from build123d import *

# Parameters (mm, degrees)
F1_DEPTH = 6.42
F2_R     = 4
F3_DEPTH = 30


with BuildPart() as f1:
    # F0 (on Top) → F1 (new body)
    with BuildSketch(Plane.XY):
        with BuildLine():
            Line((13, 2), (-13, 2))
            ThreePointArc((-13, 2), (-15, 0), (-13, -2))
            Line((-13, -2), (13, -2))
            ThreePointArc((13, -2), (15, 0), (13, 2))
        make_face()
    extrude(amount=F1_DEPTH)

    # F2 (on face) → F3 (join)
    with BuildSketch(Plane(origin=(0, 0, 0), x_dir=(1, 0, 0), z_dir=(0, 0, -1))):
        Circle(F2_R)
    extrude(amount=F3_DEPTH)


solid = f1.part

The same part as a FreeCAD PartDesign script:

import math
import FreeCAD as App
import Part
import Sketcher

V = App.Vector
Q = App.Units.Quantity

doc = App.newDocument("Part")
params = doc.addObject("Spreadsheet::Sheet", "Params")
for row, (alias, value) in enumerate([
    ("sketch1_radius", "2 mm"),
    ("sketch1_width", "26 mm"),
    ("pad1_length", "6.42 mm"),
    ("sketch2_diameter", "8 mm"),
    ("pad2_length", "30 mm"),
], start=1):
    params.set(f"A{row}", alias)
    params.set(f"B{row}", "=" + value)
    params.setAlias(f"B{row}", alias)

body = doc.addObject("PartDesign::Body", "Body")

# Sketch on XY plane
sketch1 = doc.addObject("Sketcher::SketchObject", "Sketch")
body.addObject(sketch1)
sketch1.AttachmentSupport = (doc.XY_Plane, [""])
sketch1.MapMode = "FlatFace"
sketch1.addGeometry([
    Part.LineSegment(V(13, 2, 0), V(-13, 2, 0)),
    Part.ArcOfCircle(Part.Circle(V(-13, 0, 0), V(0, 0, 1), 2), math.radians(90), math.radians(270)),
    Part.LineSegment(V(-13, -2, 0), V(13, -2, 0)),
    Part.ArcOfCircle(Part.Circle(V(13, 0, 0), V(0, 0, 1), 2), math.radians(-90), math.radians(90)),
], False)
sketch1.addConstraint([
    Sketcher.Constraint("Tangent", 0, 2, 1, 1),
    Sketcher.Constraint("Tangent", 1, 2, 2, 1),
    Sketcher.Constraint("Tangent", 2, 2, 3, 1),
    Sketcher.Constraint("Tangent", 3, 2, 0, 1),
    Sketcher.Constraint("Horizontal", 0),
    Sketcher.Constraint("Horizontal", 2),
    Sketcher.Constraint("Symmetric", 1, 3, 3, 3, -1, 1),
    Sketcher.Constraint("Radius", 1, Q("2 mm")),
    Sketcher.Constraint("DistanceX", 0, 2, 0, 1, Q("26 mm")),
])
sketch1.setExpression("Constraints[7]", "Params.sketch1_radius")
sketch1.setExpression("Constraints[8]", "Params.sketch1_width")
pad1 = doc.addObject("PartDesign::Pad", "Pad")
body.addObject(pad1)
pad1.Profile = sketch1
pad1.setExpression("Length", "Params.pad1_length")

# Sketch on XY plane
sketch2 = doc.addObject("Sketcher::SketchObject", "Sketch001")
body.addObject(sketch2)
sketch2.AttachmentSupport = (doc.XY_Plane, [""])
sketch2.MapMode = "FlatFace"
sketch2.addGeometry(Part.Circle(V(0, 0, 0), V(0, 0, 1), 4), False)
sketch2.addConstraint([
    Sketcher.Constraint("Coincident", 0, 3, -1, 1),
    Sketcher.Constraint("Diameter", 0, Q("8 mm")),
])
sketch2.setExpression("Constraints[1]", "Params.sketch2_diameter")
pad2 = doc.addObject("PartDesign::Pad", "Pad001")
body.addObject(pad2)
pad2.Profile = sketch2
pad2.setExpression("Length", "Params.pad2_length")
pad2.Reversed = True

doc.recompute()
